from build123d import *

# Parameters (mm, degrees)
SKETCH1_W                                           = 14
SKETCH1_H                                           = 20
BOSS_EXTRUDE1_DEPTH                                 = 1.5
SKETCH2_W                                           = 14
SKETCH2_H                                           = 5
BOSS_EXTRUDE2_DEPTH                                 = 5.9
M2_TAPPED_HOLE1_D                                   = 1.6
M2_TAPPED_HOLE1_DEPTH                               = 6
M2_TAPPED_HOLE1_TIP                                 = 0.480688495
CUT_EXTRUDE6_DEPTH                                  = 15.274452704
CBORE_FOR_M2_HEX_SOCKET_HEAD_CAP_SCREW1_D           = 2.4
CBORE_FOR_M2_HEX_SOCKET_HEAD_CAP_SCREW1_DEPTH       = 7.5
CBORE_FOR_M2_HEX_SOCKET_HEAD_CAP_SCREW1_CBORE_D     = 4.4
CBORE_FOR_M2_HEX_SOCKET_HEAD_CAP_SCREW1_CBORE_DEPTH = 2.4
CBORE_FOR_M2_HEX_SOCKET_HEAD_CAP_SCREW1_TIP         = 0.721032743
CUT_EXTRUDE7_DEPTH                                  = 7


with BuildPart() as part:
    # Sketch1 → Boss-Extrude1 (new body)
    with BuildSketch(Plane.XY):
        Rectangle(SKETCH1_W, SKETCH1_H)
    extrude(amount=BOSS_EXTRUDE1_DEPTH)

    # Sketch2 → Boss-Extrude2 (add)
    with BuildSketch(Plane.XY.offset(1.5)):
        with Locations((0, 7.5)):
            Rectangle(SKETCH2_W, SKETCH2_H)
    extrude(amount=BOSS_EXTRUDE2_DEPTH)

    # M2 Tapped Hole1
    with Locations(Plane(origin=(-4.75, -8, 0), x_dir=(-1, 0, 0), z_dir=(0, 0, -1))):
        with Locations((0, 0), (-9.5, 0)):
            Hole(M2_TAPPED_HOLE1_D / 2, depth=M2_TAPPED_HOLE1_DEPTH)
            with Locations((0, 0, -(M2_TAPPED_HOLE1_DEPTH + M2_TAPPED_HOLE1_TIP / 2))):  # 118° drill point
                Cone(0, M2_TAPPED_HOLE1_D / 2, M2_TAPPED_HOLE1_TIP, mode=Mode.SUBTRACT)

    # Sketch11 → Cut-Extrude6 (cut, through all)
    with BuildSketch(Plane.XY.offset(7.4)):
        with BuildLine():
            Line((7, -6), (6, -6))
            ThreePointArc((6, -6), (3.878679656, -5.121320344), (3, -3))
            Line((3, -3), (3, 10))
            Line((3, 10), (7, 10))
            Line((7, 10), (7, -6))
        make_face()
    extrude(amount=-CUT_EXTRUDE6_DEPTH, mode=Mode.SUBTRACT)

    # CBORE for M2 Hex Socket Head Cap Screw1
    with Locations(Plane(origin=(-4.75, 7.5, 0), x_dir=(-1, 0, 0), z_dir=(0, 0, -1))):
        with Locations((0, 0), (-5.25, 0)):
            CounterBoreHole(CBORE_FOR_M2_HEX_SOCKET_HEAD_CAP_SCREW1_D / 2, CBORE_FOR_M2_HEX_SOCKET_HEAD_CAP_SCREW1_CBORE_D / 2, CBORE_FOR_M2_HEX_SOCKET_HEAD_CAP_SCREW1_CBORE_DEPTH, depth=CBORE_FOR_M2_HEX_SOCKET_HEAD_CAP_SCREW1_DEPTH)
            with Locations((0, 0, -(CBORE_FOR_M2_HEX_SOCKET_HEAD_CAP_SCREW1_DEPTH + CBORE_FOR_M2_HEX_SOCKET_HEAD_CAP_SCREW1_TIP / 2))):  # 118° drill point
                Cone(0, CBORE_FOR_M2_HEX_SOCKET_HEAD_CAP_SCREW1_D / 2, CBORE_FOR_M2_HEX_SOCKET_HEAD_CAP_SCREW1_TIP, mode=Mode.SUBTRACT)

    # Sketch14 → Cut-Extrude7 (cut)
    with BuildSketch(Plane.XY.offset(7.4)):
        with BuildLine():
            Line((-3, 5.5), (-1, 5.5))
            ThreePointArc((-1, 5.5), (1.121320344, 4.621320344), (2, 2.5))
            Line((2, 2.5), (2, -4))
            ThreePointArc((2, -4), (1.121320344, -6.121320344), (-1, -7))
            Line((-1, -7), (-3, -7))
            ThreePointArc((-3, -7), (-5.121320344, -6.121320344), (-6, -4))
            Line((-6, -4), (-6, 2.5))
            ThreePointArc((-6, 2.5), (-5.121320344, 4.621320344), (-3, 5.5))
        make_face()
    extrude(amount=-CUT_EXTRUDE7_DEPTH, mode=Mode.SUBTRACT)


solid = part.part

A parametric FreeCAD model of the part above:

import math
import FreeCAD as App
import Part
import Sketcher

V = App.Vector
Q = App.Units.Quantity

doc = App.newDocument("Part")
body = doc.addObject("PartDesign::Body", "Body")

sketch1 = doc.addObject("Sketcher::SketchObject", "Sketch")
body.addObject(sketch1)
sketch1.AttachmentSupport = (doc.XY_Plane, [""])
sketch1.MapMode = "FlatFace"
sketch1.addGeometry([
    Part.LineSegment(V(-7, 10, 0), V(-7, -10, 0)),
    Part.LineSegment(V(-7, -10, 0), V(7, -10, 0)),
    Part.LineSegment(V(7, -10, 0), V(7, 10, 0)),
    Part.LineSegment(V(7, 10, 0), V(-7, 10, 0)),
], False)
sketch1.addConstraint([
    Sketcher.Constraint("Coincident", 0, 2, 1, 1),
    Sketcher.Constraint("Coincident", 1, 2, 2, 1),
    Sketcher.Constraint("Coincident", 2, 2, 3, 1),
    Sketcher.Constraint("Coincident", 3, 2, 0, 1),
    Sketcher.Constraint("Vertical", 0),
    Sketcher.Constraint("Horizontal", 1),
    Sketcher.Constraint("Vertical", 2),
    Sketcher.Constraint("Horizontal", 3),
    Sketcher.Constraint("Symmetric", 0, 2, 2, 2, -1, 1),
    Sketcher.Constraint("DistanceX", 1, 1, 1, 2, Q("14 mm")),
    Sketcher.Constraint("DistanceY", 0, 2, 0, 1, Q("20 mm")),
])
pad1 = doc.addObject("PartDesign::Pad", "Pad")
body.addObject(pad1)
pad1.Profile = sketch1
pad1.Length = 1.5

sketch2 = doc.addObject("Sketcher::SketchObject", "Sketch001")
body.addObject(sketch2)
sketch2.AttachmentSupport = (doc.XY_Plane, [""])
sketch2.MapMode = "FlatFace"
sketch2.AttachmentOffset = App.Placement(V(0, 0, 1.5), App.Rotation())
sketch2.addGeometry([
    Part.LineSegment(V(-7, 10, 0), V(-7, 5, 0)),
    Part.LineSegment(V(-7, 5, 0), V(7, 5, 0)),
    Part.LineSegment(V(7, 5, 0), V(7, 10, 0)),
    Part.LineSegment(V(7, 10, 0), V(-7, 10, 0)),
], False)
sketch2.addConstraint([
    Sketcher.Constraint("Coincident", 0, 2, 1, 1),
    Sketcher.Constraint("Coincident", 1, 2, 2, 1),
    Sketcher.Constraint("Coincident", 2, 2, 3, 1),
    Sketcher.Constraint("Coincident", 3, 2, 0, 1),
    Sketcher.Constraint("Vertical", 0),
    Sketcher.Constraint("Horizontal", 1),
    Sketcher.Constraint("Vertical", 2),
    Sketcher.Constraint("Horizontal", 3),
    Sketcher.Constraint("DistanceX", 1, 1, 1, 2, Q("14 mm")),
    Sketcher.Constraint("DistanceY", 0, 2, 0, 1, Q("5 mm")),
    Sketcher.Constraint("DistanceX", 0, 2, -1, 1, Q("7 mm")),
    Sketcher.Constraint("DistanceY", -1, 1, 0, 2, Q("5 mm")),
])
pad2 = doc.addObject("PartDesign::Pad", "Pad001")
body.addObject(pad2)
pad2.Profile = sketch2
pad2.Length = 5.9

sketch3 = doc.addObject("Sketcher::SketchObject", "Sketch002")
body.addObject(sketch3)
sketch3.AttachmentSupport = (doc.XY_Plane, [""])
sketch3.MapMode = "FlatFace"
sketch3.addGeometry([
    Part.Circle(V(-4.75, -8, 0), V(0, 0, 1), 0.8),
    Part.Circle(V(4.75, -8, 0), V(0, 0, 1), 0.8),
], False)
sketch3.addConstraint([
    Sketcher.Constraint("Equal", 0, 1),
    Sketcher.Constraint("Symmetric", 0, 3, 1, 3, -2),
    Sketcher.Constraint("Diameter", 0, Q("1.6 mm")),
    Sketcher.Constraint("DistanceY", 0, 3, -1, 1, Q("8 mm")),
    Sketcher.Constraint("DistanceX", 0, 3, 1, 3, Q("9.5 mm")),
])
doc.recompute()
hole = doc.addObject("PartDesign::Hole", "Hole")
body.addObject(hole)
hole.Profile = sketch3
hole.ThreadType = "None"
hole.Diameter = 1.6
hole.DepthType = "Dimension"
hole.Depth = 6
hole.DrillPoint = "Angled"
hole.DrillPointAngle = 118
hole.Reversed = True

sketch4 = doc.addObject("Sketcher::SketchObject", "Sketch003")
body.addObject(sketch4)
sketch4.AttachmentSupport = (doc.XY_Plane, [""])
sketch4.MapMode = "FlatFace"
sketch4.AttachmentOffset = App.Placement(V(0, 0, 7.4), App.Rotation())
sketch4.addGeometry([
    Part.LineSegment(V(6, -6, 0), V(7, -6, 0)),
    Part.LineSegment(V(7, -6, 0), V(7, 10, 0)),
    Part.LineSegment(V(7, 10, 0), V(3, 10, 0)),
    Part.LineSegment(V(3, 10, 0), V(3, -3, 0)),
    Part.ArcOfCircle(Part.Circle(V(6, -3, 0), V(0, 0, 1), 3), math.radians(180), math.radians(270)),
], False)
sketch4.addConstraint([
    Sketcher.Constraint("Coincident", 0, 2, 1, 1),
    Sketcher.Constraint("Coincident", 1, 2, 2, 1),
    Sketcher.Constraint("Coincident", 2, 2, 3, 1),
    Sketcher.Constraint("Tangent", 3, 2, 4, 1),
    Sketcher.Constraint("Tangent", 4, 2, 0, 1),
    Sketcher.Constraint("Horizontal", 0),
    Sketcher.Constraint("Vertical", 1),
    Sketcher.Constraint("Horizontal", 2),
    Sketcher.Constraint("Vertical", 3),
    Sketcher.Constraint("Radius", 4, Q("3 mm")),
    Sketcher.Constraint("DistanceX", 0, 1, 0, 2, Q("1 mm")),
    Sketcher.Constraint("DistanceY", 1, 1, 1, 2, Q("16 mm")),
    Sketcher.Constraint("DistanceX", -1, 1, 4, 3, Q("6 mm")),
    Sketcher.Constraint("DistanceY", 4, 3, -1, 1, Q("3 mm")),
])
pocket1 = doc.addObject("PartDesign::Pocket", "Pocket")
body.addObject(pocket1)
pocket1.Profile = sketch4
pocket1.Type = "ThroughAll"

sketch5 = doc.addObject("Sketcher::SketchObject", "Sketch004")
body.addObject(sketch5)
sketch5.AttachmentSupport = (doc.XY_Plane, [""])
sketch5.MapMode = "FlatFace"
sketch5.addGeometry([
    Part.Circle(V(-4.75, 7.5, 0), V(0, 0, 1), 1.2),
    Part.Circle(V(0.5, 7.5, 0), V(0, 0, 1), 1.2),
], False)
sketch5.addConstraint([
    Sketcher.Constraint("Equal", 0, 1),
    Sketcher.Constraint("Horizontal", 0, 3, 1, 3),
    Sketcher.Constraint("Diameter", 0, Q("2.4 mm")),
    Sketcher.Constraint("DistanceY", -1, 1, 0, 3, Q("7.5 mm")),
    Sketcher.Constraint("DistanceX", -1, 1, 1, 3, Q("0.5 mm")),
    Sketcher.Constraint("DistanceX", 0, 3, -1, 1, Q("4.75 mm")),
])
doc.recompute()
hole2 = doc.addObject("PartDesign::Hole", "Hole001")
body.addObject(hole2)
hole2.Profile = sketch5
hole2.ThreadType = "None"
hole2.Diameter = 2.4
hole2.DepthType = "Dimension"
hole2.Depth = 7.5
hole2.DrillPoint = "Angled"
hole2.DrillPointAngle = 118
hole2.HoleCutType = "Counterbore"
hole2.HoleCutDiameter = 4.4
hole2.HoleCutDepth = 2.4
hole2.Reversed = True

sketch6 = doc.addObject("Sketcher::SketchObject", "Sketch005")
body.addObject(sketch6)
sketch6.AttachmentSupport = (doc.XY_Plane, [""])
sketch6.MapMode = "FlatFace"
sketch6.AttachmentOffset = App.Placement(V(0, 0, 7.4), App.Rotation())
sketch6.addGeometry([
    Part.LineSegment(V(-1, 5.5, 0), V(-3, 5.5, 0)),
    Part.ArcOfCircle(Part.Circle(V(-3, 2.5, 0), V(0, 0, 1), 3), math.radians(90), math.radians(180)),
    Part.LineSegment(V(-6, 2.5, 0), V(-6, -4, 0)),
    Part.ArcOfCircle(Part.Circle(V(-3, -4, 0), V(0, 0, 1), 3), math.radians(180), math.radians(270)),
    Part.LineSegment(V(-3, -7, 0), V(-1, -7, 0)),
    Part.ArcOfCircle(Part.Circle(V(-1, -4, 0), V(0, 0, 1), 3), math.radians(-90), math.radians(0)),
    Part.LineSegment(V(2, -4, 0), V(2, 2.5, 0)),
    Part.ArcOfCircle(Part.Circle(V(-1, 2.5, 0), V(0, 0, 1), 3), math.radians(0), math.radians(90)),
], False)
sketch6.addConstraint([
    Sketcher.Constraint("Tangent", 0, 2, 1, 1),
    Sketcher.Constraint("Tangent", 1, 2, 2, 1),
    Sketcher.Constraint("Tangent", 2, 2, 3, 1),
    Sketcher.Constraint("Tangent", 3, 2, 4, 1),
    Sketcher.Constraint("Tangent", 4, 2, 5, 1),
    Sketcher.Constraint("Tangent", 5, 2, 6, 1),
    Sketcher.Constraint("Tangent", 6, 2, 7, 1),
    Sketcher.Constraint("Tangent", 7, 2, 0, 1),
    Sketcher.Constraint("Horizontal", 0),
    Sketcher.Constraint("Vertical", 2),
    Sketcher.Constraint("Horizontal", 4),
    Sketcher.Constraint("Vertical", 6),
    Sketcher.Constraint("Equal", 1, 3),
    Sketcher.Constraint("Equal", 3, 5),
    Sketcher.Constraint("Equal", 5, 7),
    Sketcher.Constraint("Radius", 1, Q("3 mm")),
    Sketcher.Constraint("DistanceX", 0, 2, 0, 1, Q("2 mm")),
    Sketcher.Constraint("DistanceY", 2, 2, 2, 1, Q("6.5 mm")),
    Sketcher.Constraint("DistanceX", 1, 3, -1, 1, Q("3 mm")),
    Sketcher.Constraint("DistanceY", 3, 3, -1, 1, Q("4 mm")),
])
pocket2 = doc.addObject("PartDesign::Pocket", "Pocket001")
body.addObject(pocket2)
pocket2.Profile = sketch6
pocket2.Length = 7

doc.recompute()
